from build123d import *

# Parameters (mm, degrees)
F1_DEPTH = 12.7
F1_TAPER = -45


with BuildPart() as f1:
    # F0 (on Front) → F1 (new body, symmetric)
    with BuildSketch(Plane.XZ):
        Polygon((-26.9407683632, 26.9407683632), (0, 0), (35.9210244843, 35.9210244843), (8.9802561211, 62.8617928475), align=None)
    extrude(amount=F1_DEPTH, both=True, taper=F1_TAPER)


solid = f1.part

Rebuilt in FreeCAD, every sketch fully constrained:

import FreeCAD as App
import Part
import Sketcher
Q = App.Units.Quantity


def add_polygon(sketch, points):
    """Adds a closed chain of lines whose ends are joined by coincident constraints."""
    first, n = sketch.GeometryCount, len(points)
    for a, b in zip(points, points[1:] + points[:1]):
        sketch.addGeometry(Part.LineSegment(App.Vector(*a, 0), App.Vector(*b, 0)), False)
    for i in range(n):
        sketch.addConstraint(Sketcher.Constraint("Coincident", first + i, 2, first + (i + 1) % n, 1))

doc = App.newDocument("Part")
body = doc.addObject("PartDesign::Body", "Body")

# Sketch on XZ plane
sketch1 = body.newObject("Sketcher::SketchObject", "Sketch")
sketch1.AttachmentSupport = (doc.getObject("XZ_Plane"), [""])
sketch1.MapMode = "FlatFace"
add_polygon(sketch1, [(-27, 27), (0, 0), (36, 36), (9, 63)])  # lines 0-3
sketch1.addConstraint([
    Sketcher.Constraint("Coincident", 0, 2, -1, 1),
    Sketcher.Constraint("Perpendicular", 0, 1),
    Sketcher.Constraint("Perpendicular", 1, 2),
    Sketcher.Constraint("Perpendicular", 2, 3),
    Sketcher.Constraint("Distance", 1, Q("2 in")),
    Sketcher.Constraint("Angle", 0, Q("-45 deg")),
    Sketcher.Constraint("Distance", 0, Q("1.5 in")),
])
pad1 = body.newObject("PartDesign::Pad", "Pad")
pad1.Profile = sketch1
pad1.Length = Q("1 in")
pad1.Midplane = True
pad1.TaperAngle = 45

doc.recompute()
